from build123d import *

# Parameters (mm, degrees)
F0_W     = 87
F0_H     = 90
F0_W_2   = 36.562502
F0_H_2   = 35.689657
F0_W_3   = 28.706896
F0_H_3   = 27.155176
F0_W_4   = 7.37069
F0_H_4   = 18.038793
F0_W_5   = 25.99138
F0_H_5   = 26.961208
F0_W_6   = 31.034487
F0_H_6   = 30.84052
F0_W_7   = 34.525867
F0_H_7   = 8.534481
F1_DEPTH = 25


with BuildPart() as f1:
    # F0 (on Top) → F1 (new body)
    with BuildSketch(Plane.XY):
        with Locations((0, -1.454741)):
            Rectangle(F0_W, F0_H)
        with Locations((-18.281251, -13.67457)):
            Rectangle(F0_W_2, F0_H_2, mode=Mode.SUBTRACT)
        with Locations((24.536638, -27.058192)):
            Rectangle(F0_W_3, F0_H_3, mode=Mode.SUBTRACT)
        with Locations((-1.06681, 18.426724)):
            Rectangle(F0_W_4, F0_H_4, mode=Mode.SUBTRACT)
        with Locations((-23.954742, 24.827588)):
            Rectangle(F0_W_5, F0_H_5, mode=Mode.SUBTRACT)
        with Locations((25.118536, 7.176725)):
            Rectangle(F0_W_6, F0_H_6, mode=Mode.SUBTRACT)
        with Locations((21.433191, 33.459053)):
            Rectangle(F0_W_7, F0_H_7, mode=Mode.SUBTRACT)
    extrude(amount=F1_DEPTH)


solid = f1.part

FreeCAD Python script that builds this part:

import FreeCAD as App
import Part
import Sketcher

V = App.Vector
Q = App.Units.Quantity


def add_polygon(sketch, points):
    """Adds a closed chain of lines whose ends are joined by coincident constraints."""
    first, n = sketch.GeometryCount, len(points)
    for a, b in zip(points, points[1:] + points[:1]):
        sketch.addGeometry(Part.LineSegment(App.Vector(*a, 0), App.Vector(*b, 0)), False)
    for i in range(n):
        sketch.addConstraint(Sketcher.Constraint("Coincident", first + i, 2, first + (i + 1) % n, 1))

doc = App.newDocument("Part")
body = doc.addObject("PartDesign::Body", "Body")

sketch1 = body.newObject("Sketcher::SketchObject", "Sketch")
sketch1.AttachmentSupport = (doc.getObject("XY_Plane"), [""])
sketch1.MapMode = "FlatFace"
add_polygon(sketch1, [(-44, 44), (-44, -46), (44, -46), (44, 44)])
add_polygon(sketch1, [(0, -32), (-37, -32), (-37, 4), (0, 4)])
add_polygon(sketch1, [(39, -41), (10, -41), (10, -13), (39, -13)])
add_polygon(sketch1, [(3, 9), (-5, 9), (-5, 27), (3, 27)])
add_polygon(sketch1, [(-11, 11), (-37, 11), (-37, 38), (-11, 38)])
add_polygon(sketch1, [(41, -8), (10, -8), (10, 23), (41, 23)])
add_polygon(sketch1, [(39, 29), (4, 29), (4, 38), (39, 38)])
sketch1.addConstraint([
    Sketcher.Constraint("Vertical", 0),
    Sketcher.Constraint("Horizontal", 1),
    Sketcher.Constraint("Vertical", 2),
    Sketcher.Constraint("Horizontal", 3),
    Sketcher.Constraint("Horizontal", 4),
    Sketcher.Constraint("Vertical", 5),
    Sketcher.Constraint("Horizontal", 6),
    Sketcher.Constraint("Vertical", 7),
    Sketcher.Constraint("Horizontal", 8),
    Sketcher.Constraint("Vertical", 9),
    Sketcher.Constraint("Horizontal", 10),
    Sketcher.Constraint("Vertical", 11),
    Sketcher.Constraint("Horizontal", 12),
    Sketcher.Constraint("Vertical", 13),
    Sketcher.Constraint("Horizontal", 14),
    Sketcher.Constraint("Vertical", 15),
    Sketcher.Constraint("Horizontal", 16),
    Sketcher.Constraint("Vertical", 17),
    Sketcher.Constraint("Horizontal", 18),
    Sketcher.Constraint("Vertical", 19),
    Sketcher.Constraint("Horizontal", 20),
    Sketcher.Constraint("Vertical", 21),
    Sketcher.Constraint("Horizontal", 22),
    Sketcher.Constraint("Vertical", 23),
    Sketcher.Constraint("Horizontal", 24),
    Sketcher.Constraint("Vertical", 25),
    Sketcher.Constraint("Horizontal", 26),
    Sketcher.Constraint("Vertical", 27),
    Sketcher.Constraint("PointOnObject", 6, 2, -2),
    Sketcher.Constraint("DistanceX", 1, 1, 1, 2, Q("87 mm")),
    Sketcher.Constraint("DistanceY", 0, 2, 0, 1, Q("90 mm")),
    Sketcher.Constraint("DistanceX", 0, 2, -1, 1, Q("43.5 mm")),
    Sketcher.Constraint("DistanceY", 5, 2, 3, 2, Q("39.375 mm")),
    Sketcher.Constraint("DistanceX", 12, 2, 12, 1, Q("7.37069 mm")),
    Sketcher.Constraint("DistanceX", 16, 2, 16, 1, Q("25.99138 mm")),
    Sketcher.Constraint("DistanceY", 21, 1, 21, 2, Q("30.84052 mm")),
    Sketcher.Constraint("DistanceY", 25, 1, 25, 2, Q("8.534481 mm")),
    Sketcher.Constraint("DistanceY", 4, 2, -1, 1, Q("31.519399 mm")),
    Sketcher.Constraint("DistanceX", 4, 2, 1, 2, Q("80.062502 mm")),
    Sketcher.Constraint("DistanceY", 25, 2, 18, 2, Q("0.581899 mm")),
    Sketcher.Constraint("DistanceX", 8, 2, 8, 1, Q("28.706896 mm")),
    Sketcher.Constraint("DistanceX", 20, 2, 20, 1, Q("31.034487 mm")),
    Sketcher.Constraint("DistanceX", 24, 2, 24, 1, Q("34.525867 mm")),
    Sketcher.Constraint("DistanceY", 5, 1, 5, 2, Q("35.689657 mm")),
    Sketcher.Constraint("DistanceY", 9, 1, 9, 2, Q("27.155176 mm")),
    Sketcher.Constraint("DistanceY", 13, 1, 13, 2, Q("18.038793 mm")),
    Sketcher.Constraint("DistanceY", 17, 1, 17, 2, Q("26.961208 mm")),
    Sketcher.Constraint("DistanceX", -1, 1, 8, 2, Q("10.18319 mm")),
    Sketcher.Constraint("DistanceY", 8, 2, -1, 1, Q("40.63578 mm")),
    Sketcher.Constraint("DistanceY", -1, 1, 13, 2, Q("27.44612 mm")),
    Sketcher.Constraint("DistanceY", -1, 1, 17, 2, Q("38.308192 mm")),
    Sketcher.Constraint("DistanceX", -1, 1, 22, 2, Q("40.635779 mm")),
    Sketcher.Constraint("DistanceX", 12, 2, 10, 2, Q("43.642241 mm")),
    Sketcher.Constraint("DistanceX", 16, 2, 5, 2, Q("0.38793 mm")),
    Sketcher.Constraint("DistanceY", 9, 2, 20, 2, Q("5.237069 mm")),
    Sketcher.Constraint("DistanceX", 18, 2, 24, 2, Q("15.129309 mm")),
])
pad1 = body.newObject("PartDesign::Pad", "Pad")
pad1.Profile = sketch1
pad1.Length = 25

doc.recompute()
